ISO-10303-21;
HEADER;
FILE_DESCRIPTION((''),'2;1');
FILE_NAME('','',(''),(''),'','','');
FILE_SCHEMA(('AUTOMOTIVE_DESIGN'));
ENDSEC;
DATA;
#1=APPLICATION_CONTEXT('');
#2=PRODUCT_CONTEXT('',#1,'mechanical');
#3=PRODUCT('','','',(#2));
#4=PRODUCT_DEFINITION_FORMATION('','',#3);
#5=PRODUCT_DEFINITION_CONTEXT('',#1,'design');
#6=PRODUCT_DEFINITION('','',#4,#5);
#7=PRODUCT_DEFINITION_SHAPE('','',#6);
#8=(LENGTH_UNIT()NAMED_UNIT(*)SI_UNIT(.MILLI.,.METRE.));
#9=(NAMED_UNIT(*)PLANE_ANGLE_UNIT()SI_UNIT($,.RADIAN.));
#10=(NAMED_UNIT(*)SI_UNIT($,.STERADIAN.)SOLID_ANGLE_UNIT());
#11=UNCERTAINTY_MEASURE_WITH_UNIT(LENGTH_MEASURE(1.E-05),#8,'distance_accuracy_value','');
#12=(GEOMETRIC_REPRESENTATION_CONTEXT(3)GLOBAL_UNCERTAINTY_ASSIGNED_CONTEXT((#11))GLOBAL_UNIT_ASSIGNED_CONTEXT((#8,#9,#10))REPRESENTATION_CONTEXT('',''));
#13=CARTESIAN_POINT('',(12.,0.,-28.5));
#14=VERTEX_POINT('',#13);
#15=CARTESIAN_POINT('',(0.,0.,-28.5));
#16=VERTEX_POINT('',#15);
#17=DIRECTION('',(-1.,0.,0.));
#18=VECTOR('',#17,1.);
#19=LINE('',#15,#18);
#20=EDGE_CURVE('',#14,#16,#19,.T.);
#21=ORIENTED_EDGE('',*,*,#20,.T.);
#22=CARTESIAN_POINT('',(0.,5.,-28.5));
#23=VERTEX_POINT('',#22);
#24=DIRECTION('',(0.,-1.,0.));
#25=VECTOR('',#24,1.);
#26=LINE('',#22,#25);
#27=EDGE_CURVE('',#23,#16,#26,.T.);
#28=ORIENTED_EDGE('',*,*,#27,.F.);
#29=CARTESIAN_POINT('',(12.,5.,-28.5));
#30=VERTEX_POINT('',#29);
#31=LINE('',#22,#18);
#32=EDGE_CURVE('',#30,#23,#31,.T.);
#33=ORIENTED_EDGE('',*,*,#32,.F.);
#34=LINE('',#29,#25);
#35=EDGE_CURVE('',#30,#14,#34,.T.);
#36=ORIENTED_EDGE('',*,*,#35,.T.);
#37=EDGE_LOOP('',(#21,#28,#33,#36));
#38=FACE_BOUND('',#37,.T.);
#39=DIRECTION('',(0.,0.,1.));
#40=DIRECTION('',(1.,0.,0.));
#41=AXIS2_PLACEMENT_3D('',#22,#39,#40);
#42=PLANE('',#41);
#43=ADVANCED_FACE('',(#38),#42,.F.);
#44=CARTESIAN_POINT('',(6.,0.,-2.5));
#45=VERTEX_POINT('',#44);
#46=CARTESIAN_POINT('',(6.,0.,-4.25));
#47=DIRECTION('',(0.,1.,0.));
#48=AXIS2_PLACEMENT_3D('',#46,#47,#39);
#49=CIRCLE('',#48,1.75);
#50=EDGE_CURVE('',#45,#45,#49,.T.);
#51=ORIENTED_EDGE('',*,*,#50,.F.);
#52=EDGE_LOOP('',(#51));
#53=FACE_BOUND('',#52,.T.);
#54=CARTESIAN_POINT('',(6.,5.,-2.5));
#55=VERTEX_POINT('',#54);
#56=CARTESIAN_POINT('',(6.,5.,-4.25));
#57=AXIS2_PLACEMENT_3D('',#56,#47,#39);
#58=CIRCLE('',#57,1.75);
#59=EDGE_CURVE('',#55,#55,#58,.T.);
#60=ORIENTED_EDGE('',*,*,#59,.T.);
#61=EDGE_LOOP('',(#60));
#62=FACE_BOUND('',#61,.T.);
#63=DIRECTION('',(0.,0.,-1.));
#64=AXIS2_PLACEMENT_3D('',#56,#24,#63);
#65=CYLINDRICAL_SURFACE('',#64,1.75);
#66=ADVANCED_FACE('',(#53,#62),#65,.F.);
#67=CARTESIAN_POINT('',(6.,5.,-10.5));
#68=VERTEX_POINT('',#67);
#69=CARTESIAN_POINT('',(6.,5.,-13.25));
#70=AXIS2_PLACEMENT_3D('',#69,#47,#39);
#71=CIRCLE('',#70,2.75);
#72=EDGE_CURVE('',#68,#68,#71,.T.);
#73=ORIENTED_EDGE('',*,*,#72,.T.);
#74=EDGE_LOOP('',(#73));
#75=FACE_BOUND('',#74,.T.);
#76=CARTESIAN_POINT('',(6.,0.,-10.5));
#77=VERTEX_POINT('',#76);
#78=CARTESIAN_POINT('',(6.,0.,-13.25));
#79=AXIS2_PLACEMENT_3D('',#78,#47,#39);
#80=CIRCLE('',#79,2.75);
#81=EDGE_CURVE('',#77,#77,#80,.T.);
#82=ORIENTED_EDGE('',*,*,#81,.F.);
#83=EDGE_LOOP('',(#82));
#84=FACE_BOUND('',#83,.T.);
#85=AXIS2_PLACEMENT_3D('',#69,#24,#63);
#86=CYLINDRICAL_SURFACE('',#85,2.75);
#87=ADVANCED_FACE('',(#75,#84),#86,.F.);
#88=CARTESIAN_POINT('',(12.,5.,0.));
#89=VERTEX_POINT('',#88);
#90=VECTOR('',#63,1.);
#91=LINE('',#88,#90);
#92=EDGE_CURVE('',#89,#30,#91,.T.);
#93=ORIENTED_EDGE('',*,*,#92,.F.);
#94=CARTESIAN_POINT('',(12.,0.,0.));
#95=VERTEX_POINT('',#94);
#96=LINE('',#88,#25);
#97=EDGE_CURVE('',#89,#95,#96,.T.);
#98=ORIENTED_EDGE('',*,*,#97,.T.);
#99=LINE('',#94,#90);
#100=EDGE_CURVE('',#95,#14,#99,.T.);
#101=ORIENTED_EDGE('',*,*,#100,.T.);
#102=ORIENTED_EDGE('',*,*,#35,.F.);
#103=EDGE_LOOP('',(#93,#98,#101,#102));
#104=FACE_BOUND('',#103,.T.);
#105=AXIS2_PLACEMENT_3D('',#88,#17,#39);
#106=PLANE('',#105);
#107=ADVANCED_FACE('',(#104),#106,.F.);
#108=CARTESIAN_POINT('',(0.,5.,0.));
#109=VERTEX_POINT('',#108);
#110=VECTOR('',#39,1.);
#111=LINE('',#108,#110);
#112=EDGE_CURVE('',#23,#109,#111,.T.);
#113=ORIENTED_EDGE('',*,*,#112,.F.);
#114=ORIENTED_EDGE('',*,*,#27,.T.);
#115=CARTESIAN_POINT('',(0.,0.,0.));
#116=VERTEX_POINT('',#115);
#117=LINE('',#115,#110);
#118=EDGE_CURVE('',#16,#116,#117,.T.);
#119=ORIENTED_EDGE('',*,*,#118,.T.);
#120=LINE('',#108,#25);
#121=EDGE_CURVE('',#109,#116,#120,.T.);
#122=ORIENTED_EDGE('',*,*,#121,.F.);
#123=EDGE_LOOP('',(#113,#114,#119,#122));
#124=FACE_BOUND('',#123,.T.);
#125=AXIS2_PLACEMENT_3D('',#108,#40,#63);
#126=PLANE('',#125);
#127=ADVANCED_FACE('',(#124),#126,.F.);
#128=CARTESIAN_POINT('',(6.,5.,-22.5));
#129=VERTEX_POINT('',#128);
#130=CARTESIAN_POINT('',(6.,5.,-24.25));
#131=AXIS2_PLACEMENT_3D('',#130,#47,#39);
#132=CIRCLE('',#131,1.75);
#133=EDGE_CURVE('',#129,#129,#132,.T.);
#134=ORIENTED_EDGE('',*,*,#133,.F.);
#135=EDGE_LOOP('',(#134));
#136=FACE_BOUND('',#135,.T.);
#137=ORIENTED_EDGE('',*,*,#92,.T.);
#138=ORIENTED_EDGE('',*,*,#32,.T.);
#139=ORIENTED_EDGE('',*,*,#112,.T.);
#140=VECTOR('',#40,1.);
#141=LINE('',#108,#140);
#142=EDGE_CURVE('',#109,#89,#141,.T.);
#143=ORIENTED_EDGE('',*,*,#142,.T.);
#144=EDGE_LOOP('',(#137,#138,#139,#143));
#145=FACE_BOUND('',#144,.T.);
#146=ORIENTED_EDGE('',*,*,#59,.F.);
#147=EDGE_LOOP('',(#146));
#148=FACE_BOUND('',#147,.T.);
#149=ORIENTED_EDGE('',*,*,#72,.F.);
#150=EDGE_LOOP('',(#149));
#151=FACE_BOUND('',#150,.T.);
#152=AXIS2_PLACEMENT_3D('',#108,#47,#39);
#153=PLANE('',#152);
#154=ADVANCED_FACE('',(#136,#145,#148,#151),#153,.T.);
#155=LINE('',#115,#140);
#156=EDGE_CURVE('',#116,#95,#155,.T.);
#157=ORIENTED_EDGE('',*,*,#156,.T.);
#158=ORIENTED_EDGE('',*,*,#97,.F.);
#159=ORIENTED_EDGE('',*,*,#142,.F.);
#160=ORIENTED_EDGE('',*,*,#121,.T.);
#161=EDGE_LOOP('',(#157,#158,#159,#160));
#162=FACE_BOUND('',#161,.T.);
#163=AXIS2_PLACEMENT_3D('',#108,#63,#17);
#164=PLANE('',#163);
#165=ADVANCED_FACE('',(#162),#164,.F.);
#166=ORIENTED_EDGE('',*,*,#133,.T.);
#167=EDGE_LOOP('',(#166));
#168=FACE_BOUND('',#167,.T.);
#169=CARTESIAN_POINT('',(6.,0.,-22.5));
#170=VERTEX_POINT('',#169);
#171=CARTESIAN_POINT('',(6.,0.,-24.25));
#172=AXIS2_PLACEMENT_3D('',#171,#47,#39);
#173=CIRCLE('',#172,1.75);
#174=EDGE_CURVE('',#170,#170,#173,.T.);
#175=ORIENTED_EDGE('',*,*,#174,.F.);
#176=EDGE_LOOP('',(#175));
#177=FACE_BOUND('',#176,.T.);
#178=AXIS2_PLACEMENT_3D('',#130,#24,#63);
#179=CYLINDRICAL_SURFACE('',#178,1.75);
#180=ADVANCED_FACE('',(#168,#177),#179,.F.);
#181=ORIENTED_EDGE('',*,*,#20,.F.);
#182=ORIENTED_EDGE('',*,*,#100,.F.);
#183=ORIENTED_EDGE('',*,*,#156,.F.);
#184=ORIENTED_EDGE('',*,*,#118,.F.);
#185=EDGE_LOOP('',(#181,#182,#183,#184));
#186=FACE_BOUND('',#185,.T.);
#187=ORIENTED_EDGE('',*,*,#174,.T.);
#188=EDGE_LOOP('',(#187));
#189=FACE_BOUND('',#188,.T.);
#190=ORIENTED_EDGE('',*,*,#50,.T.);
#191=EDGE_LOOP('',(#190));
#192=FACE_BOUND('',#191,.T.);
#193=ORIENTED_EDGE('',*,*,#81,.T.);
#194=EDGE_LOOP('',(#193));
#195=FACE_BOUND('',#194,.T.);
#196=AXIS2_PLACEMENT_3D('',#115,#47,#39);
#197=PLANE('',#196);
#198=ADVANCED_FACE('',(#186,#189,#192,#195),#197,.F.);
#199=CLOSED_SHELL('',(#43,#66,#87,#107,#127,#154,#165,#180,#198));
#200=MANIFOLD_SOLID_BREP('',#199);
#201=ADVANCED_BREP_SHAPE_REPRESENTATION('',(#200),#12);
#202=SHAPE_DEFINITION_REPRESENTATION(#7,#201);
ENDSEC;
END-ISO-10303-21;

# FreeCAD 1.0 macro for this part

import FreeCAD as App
import Part
import Sketcher

doc = App.newDocument("Part")
body = doc.addObject("PartDesign::Body", "Body")

# Sketch on XZ plane
sketch1 = body.newObject("Sketcher::SketchObject", "Sketch")
sketch1.AttachmentSupport = (doc.getObject("XZ_Plane"), [""])
sketch1.MapMode = "FlatFace"
sketch1.addGeometry([
    Part.LineSegment(App.Vector(0, -28.5, 0), App.Vector(0, 0, 0)),  # 0
    Part.LineSegment(App.Vector(0, 0, 0), App.Vector(12, 0, 0)),  # 1
    Part.LineSegment(App.Vector(12, 0, 0), App.Vector(12, -28.5, 0)),  # 2
    Part.LineSegment(App.Vector(12, -28.5, 0), App.Vector(0, -28.5, 0)),  # 3
    Part.Circle(App.Vector(6, -4.25, 0), App.Vector(0, 0, 1), 1.75),  # 4
    Part.Circle(App.Vector(6, -13.25, 0), App.Vector(0, 0, 1), 2.75),  # 5
    Part.Circle(App.Vector(6, -24.25, 0), App.Vector(0, 0, 1), 1.75),  # 6
], False)
sketch1.addConstraint([
    Sketcher.Constraint("Coincident", 0, 2, 1, 1),
    Sketcher.Constraint("Coincident", 1, 2, 2, 1),
    Sketcher.Constraint("Coincident", 2, 2, 3, 1),
    Sketcher.Constraint("Coincident", 3, 2, 0, 1),
    Sketcher.Constraint("Vertical", 0),
    Sketcher.Constraint("Horizontal", 1),
    Sketcher.Constraint("Vertical", 2),
    Sketcher.Constraint("Horizontal", 3),
    Sketcher.Constraint("Coincident", 0, 2, -1, 1),
    Sketcher.Constraint("Equal", 4, 6),
    Sketcher.Constraint("Vertical", 4, 3, 5, 3),
    Sketcher.Constraint("Vertical", 5, 3, 6, 3),
    Sketcher.Constraint("Diameter", 4, 3.5),
    Sketcher.Constraint("Diameter", 5, 5.5),
    Sketcher.Constraint("DistanceX", 1, 1, 1, 2, 12.0),
    Sketcher.Constraint("DistanceY", 0, 1, 0, 2, 28.5),
    Sketcher.Constraint("DistanceX", -1, 1, 4, 3, 6.0),
    Sketcher.Constraint("DistanceY", 5, 3, 4, 3, 9.0),
    Sketcher.Constraint("DistanceY", 6, 3, 5, 3, 11.0),
    Sketcher.Constraint("DistanceY", 4, 3, -1, 1, 4.25),
])
pad1 = body.newObject("PartDesign::Pad", "Pad")
pad1.Profile = sketch1
pad1.Length = 5
pad1.Reversed = True

doc.recompute()
